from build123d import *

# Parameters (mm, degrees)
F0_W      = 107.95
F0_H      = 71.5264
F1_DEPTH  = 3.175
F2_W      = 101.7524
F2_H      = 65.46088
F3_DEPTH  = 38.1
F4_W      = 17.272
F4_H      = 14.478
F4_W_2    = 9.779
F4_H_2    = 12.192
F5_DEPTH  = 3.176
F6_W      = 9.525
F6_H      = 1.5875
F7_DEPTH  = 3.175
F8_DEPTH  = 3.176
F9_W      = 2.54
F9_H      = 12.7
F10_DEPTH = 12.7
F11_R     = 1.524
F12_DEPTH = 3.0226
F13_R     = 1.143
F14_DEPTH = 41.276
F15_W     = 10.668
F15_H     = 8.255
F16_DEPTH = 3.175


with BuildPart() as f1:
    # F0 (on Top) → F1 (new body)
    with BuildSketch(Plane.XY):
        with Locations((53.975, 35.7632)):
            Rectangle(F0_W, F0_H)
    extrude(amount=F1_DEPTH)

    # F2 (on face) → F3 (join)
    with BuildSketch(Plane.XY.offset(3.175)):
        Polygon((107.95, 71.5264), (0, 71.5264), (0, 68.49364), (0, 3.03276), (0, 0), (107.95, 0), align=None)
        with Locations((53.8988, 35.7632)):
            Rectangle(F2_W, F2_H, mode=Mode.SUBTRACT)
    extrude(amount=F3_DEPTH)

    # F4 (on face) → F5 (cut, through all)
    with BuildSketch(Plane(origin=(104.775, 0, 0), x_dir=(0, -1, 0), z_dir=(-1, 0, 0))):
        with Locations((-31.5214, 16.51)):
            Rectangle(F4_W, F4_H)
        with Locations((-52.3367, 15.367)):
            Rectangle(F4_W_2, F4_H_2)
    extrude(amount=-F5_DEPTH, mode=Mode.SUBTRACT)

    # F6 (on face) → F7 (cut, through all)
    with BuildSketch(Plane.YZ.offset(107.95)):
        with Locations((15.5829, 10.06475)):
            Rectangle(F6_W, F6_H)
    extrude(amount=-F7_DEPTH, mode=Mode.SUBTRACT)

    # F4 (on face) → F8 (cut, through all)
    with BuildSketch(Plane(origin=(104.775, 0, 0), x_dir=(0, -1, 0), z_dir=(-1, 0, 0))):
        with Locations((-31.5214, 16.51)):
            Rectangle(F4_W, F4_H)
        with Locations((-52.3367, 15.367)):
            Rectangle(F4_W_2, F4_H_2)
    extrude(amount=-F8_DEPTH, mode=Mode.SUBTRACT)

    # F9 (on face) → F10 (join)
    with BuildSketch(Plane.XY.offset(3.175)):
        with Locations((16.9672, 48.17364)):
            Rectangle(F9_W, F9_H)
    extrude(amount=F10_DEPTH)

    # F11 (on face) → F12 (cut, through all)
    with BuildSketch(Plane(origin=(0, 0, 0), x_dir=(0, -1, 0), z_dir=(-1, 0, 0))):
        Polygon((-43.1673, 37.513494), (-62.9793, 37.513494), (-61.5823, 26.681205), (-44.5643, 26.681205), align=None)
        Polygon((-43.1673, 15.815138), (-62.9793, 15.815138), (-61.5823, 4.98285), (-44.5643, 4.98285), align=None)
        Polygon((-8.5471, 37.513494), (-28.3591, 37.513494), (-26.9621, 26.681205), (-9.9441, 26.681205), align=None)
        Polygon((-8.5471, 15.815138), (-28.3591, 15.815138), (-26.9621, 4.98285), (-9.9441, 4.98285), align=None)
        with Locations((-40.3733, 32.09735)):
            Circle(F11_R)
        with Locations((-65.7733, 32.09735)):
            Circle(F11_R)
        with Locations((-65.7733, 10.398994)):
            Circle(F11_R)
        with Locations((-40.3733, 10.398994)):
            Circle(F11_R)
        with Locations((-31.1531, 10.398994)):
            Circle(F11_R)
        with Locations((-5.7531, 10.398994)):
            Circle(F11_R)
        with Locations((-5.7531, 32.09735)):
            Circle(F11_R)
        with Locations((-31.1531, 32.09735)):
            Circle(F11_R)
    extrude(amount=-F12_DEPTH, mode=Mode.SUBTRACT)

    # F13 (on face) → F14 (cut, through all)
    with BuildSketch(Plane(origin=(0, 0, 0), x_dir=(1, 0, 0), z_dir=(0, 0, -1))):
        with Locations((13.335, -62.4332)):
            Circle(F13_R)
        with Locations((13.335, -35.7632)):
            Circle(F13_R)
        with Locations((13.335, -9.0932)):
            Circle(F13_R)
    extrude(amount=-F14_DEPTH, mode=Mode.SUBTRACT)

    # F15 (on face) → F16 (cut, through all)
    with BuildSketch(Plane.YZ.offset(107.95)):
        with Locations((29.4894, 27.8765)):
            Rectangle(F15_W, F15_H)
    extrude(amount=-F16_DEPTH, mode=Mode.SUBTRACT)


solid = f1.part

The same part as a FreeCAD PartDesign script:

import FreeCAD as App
import Part
import Sketcher
from FreeCAD import Vector
Q = App.Units.Quantity

doc = App.newDocument("Part")
params = doc.addObject("Spreadsheet::Sheet", "Params")
for row, (alias, value) in enumerate([
    ("sketch1_width", "4.25 in"),
    ("sketch1_height", "2.816 in"),
    ("pad1_length", "0.125 in"),
    ("sketch2_width", "4.25 in"),
    ("sketch2_width2", "4.006 in"),
    ("sketch2_height", "2.816 in"),
    ("pad2_length", "1.5 in"),
    ("sketch3_width", "0.68 in"),
    ("sketch3_height", "0.57 in"),
    ("sketch3_height2", "0.48 in"),
    ("sketch3_width2", "0.385 in"),
    ("sketch4_width", "0.375 in"),
    ("sketch4_height", "0.0625 in"),
    ("pocket2_length", "0.125 in"),
    ("sketch5_width", "0.68 in"),
    ("sketch5_height", "0.57 in"),
    ("sketch5_height2", "0.48 in"),
    ("sketch5_width2", "0.385 in"),
    ("sketch6_width", "0.1 in"),
    ("sketch6_height", "0.5 in"),
    ("pad3_length", "0.5 in"),
    ("sketch7_diameter", "0.12 in"),
    ("sketch7_width", "0.78 in"),
    ("sketch7_width2", "0.67 in"),
    ("sketch7_length", "0.43 in"),
    ("pocket4_length", "0.119 in"),
    ("sketch8_diameter", "0.09 in"),
    ("sketch9_width", "0.42 in"),
    ("sketch9_height", "0.325 in"),
    ("pocket6_length", "0.125 in"),
], start=1):
    params.set(f"A{row}", alias)
    params.set(f"B{row}", "=" + value)
    params.setAlias(f"B{row}", alias)

body = doc.addObject("PartDesign::Body", "Body")

# Sketch on XY plane
sketch1 = body.newObject("Sketcher::SketchObject", "Sketch")
sketch1.AttachmentSupport = (doc.getObject("XY_Plane"), [""])
sketch1.MapMode = "FlatFace"
sketch1.addGeometry([
    Part.LineSegment(Vector(0, 72, 0), Vector(0, 0, 0)),
    Part.LineSegment(Vector(0, 0, 0), Vector(108, 0, 0)),
    Part.LineSegment(Vector(108, 0, 0), Vector(108, 72, 0)),
    Part.LineSegment(Vector(108, 72, 0), Vector(0, 72, 0)),
], False)
sketch1.addConstraint([
    Sketcher.Constraint("Coincident", 0, 2, 1, 1),
    Sketcher.Constraint("Coincident", 1, 2, 2, 1),
    Sketcher.Constraint("Coincident", 2, 2, 3, 1),
    Sketcher.Constraint("Coincident", 3, 2, 0, 1),
    Sketcher.Constraint("Vertical", 0),
    Sketcher.Constraint("Horizontal", 1),
    Sketcher.Constraint("Vertical", 2),
    Sketcher.Constraint("Horizontal", 3),
    Sketcher.Constraint("Coincident", 0, 2, -1, 1),
    Sketcher.Constraint("DistanceX", 1, 1, 1, 2, Q("4.25 in")),
    Sketcher.Constraint("DistanceY", 0, 2, 0, 1, Q("2.816 in")),
])
sketch1.setExpression("Constraints[9]", "Params.sketch1_width")
sketch1.setExpression("Constraints[10]", "Params.sketch1_height")
pad1 = body.newObject("PartDesign::Pad", "Pad")
pad1.Profile = sketch1
pad1.setExpression("Length", "Params.pad1_length")

# Sketch on XY plane
sketch2 = body.newObject("Sketcher::SketchObject", "Sketch001")
sketch2.AttachmentSupport = (doc.getObject("XY_Plane"), [""])
sketch2.MapMode = "FlatFace"
sketch2.AttachmentOffset = App.Placement(Vector(0, 0, 0.125 * 25.4), App.Rotation())
sketch2.addGeometry([
    Part.LineSegment(Vector(108, 72, 0), Vector(0, 72, 0)),  # 0
    Part.LineSegment(Vector(0, 72, 0), Vector(0, 0, 0)),  # 1
    Part.LineSegment(Vector(0, 0, 0), Vector(108, 0, 0)),  # 2
    Part.LineSegment(Vector(108, 0, 0), Vector(108, 72, 0)),  # 3
    Part.LineSegment(Vector(105, 3, 0), Vector(3, 3, 0)),  # 4
    Part.LineSegment(Vector(3, 3, 0), Vector(3, 68, 0)),  # 5
    Part.LineSegment(Vector(3, 68, 0), Vector(105, 68, 0)),  # 6
    Part.LineSegment(Vector(105, 68, 0), Vector(105, 3, 0)),  # 7
], False)
sketch2.addConstraint([
    Sketcher.Constraint("Coincident", 0, 2, 1, 1),
    Sketcher.Constraint("Coincident", 1, 2, 2, 1),
    Sketcher.Constraint("Coincident", 2, 2, 3, 1),
    Sketcher.Constraint("Coincident", 3, 2, 0, 1),
    Sketcher.Constraint("Coincident", 4, 2, 5, 1),
    Sketcher.Constraint("Coincident", 5, 2, 6, 1),
    Sketcher.Constraint("Coincident", 6, 2, 7, 1),
    Sketcher.Constraint("Coincident", 7, 2, 4, 1),
    Sketcher.Constraint("Horizontal", 0),
    Sketcher.Constraint("Vertical", 1),
    Sketcher.Constraint("Horizontal", 2),
    Sketcher.Constraint("Vertical", 3),
    Sketcher.Constraint("Horizontal", 4),
    Sketcher.Constraint("Vertical", 5),
    Sketcher.Constraint("Horizontal", 6),
    Sketcher.Constraint("Vertical", 7),
    Sketcher.Constraint("Coincident", 1, 2, -1, 1),
    Sketcher.Constraint("DistanceX", 0, 2, 0, 1, Q("4.25 in")),
    Sketcher.Constraint("DistanceX", 4, 2, 4, 1, Q("4.006 in")),
    Sketcher.Constraint("DistanceY", 1, 2, 1, 1, Q("2.816 in")),
    Sketcher.Constraint("DistanceY", 5, 1, 5, 2, Q("2.5772 in")),
    Sketcher.Constraint("DistanceX", -1, 1, 4, 2, Q("0.119 in")),
    Sketcher.Constraint("DistanceY", -1, 1, 4, 2, Q("0.1194 in")),
])
sketch2.setExpression("Constraints[17]", "Params.sketch2_width")
sketch2.setExpression("Constraints[18]", "Params.sketch2_width2")
sketch2.setExpression("Constraints[19]", "Params.sketch2_height")
pad2 = body.newObject("PartDesign::Pad", "Pad001")
pad2.Profile = sketch2
pad2.setExpression("Length", "Params.pad2_length")

# Sketch on YZ plane
sketch3 = body.newObject("Sketcher::SketchObject", "Sketch002")
sketch3.AttachmentSupport = (doc.getObject("YZ_Plane"), [""])
sketch3.MapMode = "FlatFace"
sketch3.AttachmentOffset = App.Placement(Vector(0, 0, 4.125 * 25.4), App.Rotation())
sketch3.addGeometry([
    Part.LineSegment(Vector(40, 24, 0), Vector(40, 9, 0)),  # 0
    Part.LineSegment(Vector(40, 9, 0), Vector(23, 9, 0)),  # 1
    Part.LineSegment(Vector(23, 9, 0), Vector(23, 24, 0)),  # 2
    Part.LineSegment(Vector(23, 24, 0), Vector(40, 24, 0)),  # 3
    Part.LineSegment(Vector(57, 21, 0), Vector(57, 9, 0)),  # 4
    Part.LineSegment(Vector(57, 9, 0), Vector(47, 9, 0)),  # 5
    Part.LineSegment(Vector(47, 9, 0), Vector(47, 21, 0)),  # 6
    Part.LineSegment(Vector(47, 21, 0), Vector(57, 21, 0)),  # 7
], False)
sketch3.addConstraint([
    Sketcher.Constraint("Coincident", 0, 2, 1, 1),
    Sketcher.Constraint("Coincident", 1, 2, 2, 1),
    Sketcher.Constraint("Coincident", 2, 2, 3, 1),
    Sketcher.Constraint("Coincident", 3, 2, 0, 1),
    Sketcher.Constraint("Coincident", 4, 2, 5, 1),
    Sketcher.Constraint("Coincident", 5, 2, 6, 1),
    Sketcher.Constraint("Coincident", 6, 2, 7, 1),
    Sketcher.Constraint("Coincident", 7, 2, 4, 1),
    Sketcher.Constraint("Vertical", 0),
    Sketcher.Constraint("Horizontal", 1),
    Sketcher.Constraint("Vertical", 2),
    Sketcher.Constraint("Horizontal", 3),
    Sketcher.Constraint("Vertical", 4),
    Sketcher.Constraint("Horizontal", 5),
    Sketcher.Constraint("Vertical", 6),
    Sketcher.Constraint("Horizontal", 7),
    Sketcher.Constraint("Horizontal", 1, 2, 4, 2),
    Sketcher.Constraint("DistanceX", 1, 2, 1, 1, Q("0.68 in")),
    Sketcher.Constraint("DistanceY", 0, 2, 0, 1, Q("0.57 in")),
    Sketcher.Constraint("DistanceY", 4, 2, 4, 1, Q("0.48 in")),
    Sketcher.Constraint("DistanceX", 5, 2, 5, 1, Q("0.385 in")),
    Sketcher.Constraint("DistanceX", -1, 1, 0, 2, Q("1.581 in")),
    Sketcher.Constraint("DistanceY", -1, 1, 0, 2, Q("0.365 in")),
    Sketcher.Constraint("DistanceX", -1, 1, 4, 2, Q("2.253 in")),
])
sketch3.setExpression("Constraints[17]", "Params.sketch3_width")
sketch3.setExpression("Constraints[18]", "Params.sketch3_height")
sketch3.setExpression("Constraints[19]", "Params.sketch3_height2")
sketch3.setExpression("Constraints[20]", "Params.sketch3_width2")
pocket1 = body.newObject("PartDesign::Pocket", "Pocket")
pocket1.Profile = sketch3
pocket1.Type = "ThroughAll"
pocket1.Reversed = True

# Sketch on YZ plane
sketch4 = body.newObject("Sketcher::SketchObject", "Sketch003")
sketch4.AttachmentSupport = (doc.getObject("YZ_Plane"), [""])
sketch4.MapMode = "FlatFace"
sketch4.AttachmentOffset = App.Placement(Vector(0, 0, 4.25 * 25.4), App.Rotation())
sketch4.addGeometry([
    Part.LineSegment(Vector(10.8, 10.9, 0), Vector(10.8, 9.3, 0)),
    Part.LineSegment(Vector(10.8, 9.3, 0), Vector(20.3, 9.3, 0)),
    Part.LineSegment(Vector(20.3, 9.3, 0), Vector(20.3, 10.9, 0)),
    Part.LineSegment(Vector(20.3, 10.9, 0), Vector(10.8, 10.9, 0)),
], False)
sketch4.addConstraint([
    Sketcher.Constraint("Coincident", 0, 2, 1, 1),
    Sketcher.Constraint("Coincident", 1, 2, 2, 1),
    Sketcher.Constraint("Coincident", 2, 2, 3, 1),
    Sketcher.Constraint("Coincident", 3, 2, 0, 1),
    Sketcher.Constraint("Vertical", 0),
    Sketcher.Constraint("Horizontal", 1),
    Sketcher.Constraint("Vertical", 2),
    Sketcher.Constraint("Horizontal", 3),
    Sketcher.Constraint("DistanceX", 1, 1, 1, 2, Q("0.375 in")),
    Sketcher.Constraint("DistanceY", 0, 2, 0, 1, Q("0.0625 in")),
    Sketcher.Constraint("DistanceX", -1, 1, 0, 2, Q("0.426 in")),
    Sketcher.Constraint("DistanceY", -1, 1, 0, 2, Q("0.365 in")),
])
sketch4.setExpression("Constraints[8]", "Params.sketch4_width")
sketch4.setExpression("Constraints[9]", "Params.sketch4_height")
pocket2 = body.newObject("PartDesign::Pocket", "Pocket001")
pocket2.Profile = sketch4
pocket2.setExpression("Length", "Params.pocket2_length")

# Sketch on YZ plane
sketch5 = body.newObject("Sketcher::SketchObject", "Sketch004")
sketch5.AttachmentSupport = (doc.getObject("YZ_Plane"), [""])
sketch5.MapMode = "FlatFace"
sketch5.AttachmentOffset = App.Placement(Vector(0, 0, 4.125 * 25.4), App.Rotation())
sketch5.addGeometry([
    Part.LineSegment(Vector(40, 24, 0), Vector(40, 9, 0)),  # 0
    Part.LineSegment(Vector(40, 9, 0), Vector(23, 9, 0)),  # 1
    Part.LineSegment(Vector(23, 9, 0), Vector(23, 24, 0)),  # 2
    Part.LineSegment(Vector(23, 24, 0), Vector(40, 24, 0)),  # 3
    Part.LineSegment(Vector(57, 21, 0), Vector(57, 9, 0)),  # 4
    Part.LineSegment(Vector(57, 9, 0), Vector(47, 9, 0)),  # 5
    Part.LineSegment(Vector(47, 9, 0), Vector(47, 21, 0)),  # 6
    Part.LineSegment(Vector(47, 21, 0), Vector(57, 21, 0)),  # 7
], False)
sketch5.addConstraint([
    Sketcher.Constraint("Coincident", 0, 2, 1, 1),
    Sketcher.Constraint("Coincident", 1, 2, 2, 1),
    Sketcher.Constraint("Coincident", 2, 2, 3, 1),
    Sketcher.Constraint("Coincident", 3, 2, 0, 1),
    Sketcher.Constraint("Coincident", 4, 2, 5, 1),
    Sketcher.Constraint("Coincident", 5, 2, 6, 1),
    Sketcher.Constraint("Coincident", 6, 2, 7, 1),
    Sketcher.Constraint("Coincident", 7, 2, 4, 1),
    Sketcher.Constraint("Vertical", 0),
    Sketcher.Constraint("Horizontal", 1),
    Sketcher.Constraint("Vertical", 2),
    Sketcher.Constraint("Horizontal", 3),
    Sketcher.Constraint("Vertical", 4),
    Sketcher.Constraint("Horizontal", 5),
    Sketcher.Constraint("Vertical", 6),
    Sketcher.Constraint("Horizontal", 7),
    Sketcher.Constraint("Horizontal", 1, 2, 4, 2),
    Sketcher.Constraint("DistanceX", 1, 2, 1, 1, Q("0.68 in")),
    Sketcher.Constraint("DistanceY", 0, 2, 0, 1, Q("0.57 in")),
    Sketcher.Constraint("DistanceY", 4, 2, 4, 1, Q("0.48 in")),
    Sketcher.Constraint("DistanceX", 5, 2, 5, 1, Q("0.385 in")),
    Sketcher.Constraint("DistanceX", -1, 1, 0, 2, Q("1.581 in")),
    Sketcher.Constraint("DistanceY", -1, 1, 0, 2, Q("0.365 in")),
    Sketcher.Constraint("DistanceX", -1, 1, 4, 2, Q("2.253 in")),
])
sketch5.setExpression("Constraints[17]", "Params.sketch5_width")
sketch5.setExpression("Constraints[18]", "Params.sketch5_height")
sketch5.setExpression("Constraints[19]", "Params.sketch5_height2")
sketch5.setExpression("Constraints[20]", "Params.sketch5_width2")
pocket3 = body.newObject("PartDesign::Pocket", "Pocket002")
pocket3.Profile = sketch5
pocket3.Type = "ThroughAll"
pocket3.Reversed = True

# Sketch on XY plane
sketch6 = body.newObject("Sketcher::SketchObject", "Sketch005")
sketch6.AttachmentSupport = (doc.getObject("XY_Plane"), [""])
sketch6.MapMode = "FlatFace"
sketch6.AttachmentOffset = App.Placement(Vector(0, 0, 0.125 * 25.4), App.Rotation())
sketch6.addGeometry([
    Part.LineSegment(Vector(15.7, 54.5, 0), Vector(15.7, 41.8, 0)),
    Part.LineSegment(Vector(15.7, 41.8, 0), Vector(18.2, 41.8, 0)),
    Part.LineSegment(Vector(18.2, 41.8, 0), Vector(18.2, 54.5, 0)),
    Part.LineSegment(Vector(18.2, 54.5, 0), Vector(15.7, 54.5, 0)),
], False)
sketch6.addConstraint([
    Sketcher.Constraint("Coincident", 0, 2, 1, 1),
    Sketcher.Constraint("Coincident", 1, 2, 2, 1),
    Sketcher.Constraint("Coincident", 2, 2, 3, 1),
    Sketcher.Constraint("Coincident", 3, 2, 0, 1),
    Sketcher.Constraint("Vertical", 0),
    Sketcher.Constraint("Horizontal", 1),
    Sketcher.Constraint("Vertical", 2),
    Sketcher.Constraint("Horizontal", 3),
    Sketcher.Constraint("DistanceX", 1, 1, 1, 2, Q("0.1 in")),
    Sketcher.Constraint("DistanceY", 0, 2, 0, 1, Q("0.5 in")),
    Sketcher.Constraint("DistanceX", -1, 1, 0, 2, Q("0.618 in")),
    Sketcher.Constraint("DistanceY", -1, 1, 0, 2, Q("1.6466 in")),
])
sketch6.setExpression("Constraints[8]", "Params.sketch6_width")
sketch6.setExpression("Constraints[9]", "Params.sketch6_height")
pad3 = body.newObject("PartDesign::Pad", "Pad002")
pad3.Profile = sketch6
pad3.setExpression("Length", "Params.pad3_length")

# Sketch on YZ plane
sketch7 = body.newObject("Sketcher::SketchObject", "Sketch006")
sketch7.AttachmentSupport = (doc.getObject("YZ_Plane"), [""])
sketch7.MapMode = "FlatFace"
sketch7.addGeometry([
    Part.LineSegment(Vector(43.2, 37.5, 0), Vector(63, 37.5, 0)),  # 0
    Part.LineSegment(Vector(63, 37.5, 0), Vector(61.6, 26.7, 0)),  # 1
    Part.LineSegment(Vector(61.6, 26.7, 0), Vector(44.6, 26.7, 0)),  # 2
    Part.LineSegment(Vector(44.6, 26.7, 0), Vector(43.2, 37.5, 0)),  # 3
    Part.LineSegment(Vector(43.2, 15.8, 0), Vector(63, 15.8, 0)),  # 4
    Part.LineSegment(Vector(63, 15.8, 0), Vector(61.6, 5, 0)),  # 5
    Part.LineSegment(Vector(61.6, 5, 0), Vector(44.6, 5, 0)),  # 6
    Part.LineSegment(Vector(44.6, 5, 0), Vector(43.2, 15.8, 0)),  # 7
    Part.LineSegment(Vector(8.5, 37.5, 0), Vector(28.4, 37.5, 0)),  # 8
    Part.LineSegment(Vector(28.4, 37.5, 0), Vector(27, 26.7, 0)),  # 9
    Part.LineSegment(Vector(27, 26.7, 0), Vector(9.9, 26.7, 0)),  # 10
    Part.LineSegment(Vector(9.9, 26.7, 0), Vector(8.5, 37.5, 0)),  # 11
    Part.LineSegment(Vector(8.5, 15.8, 0), Vector(28.4, 15.8, 0)),  # 12
    Part.LineSegment(Vector(28.4, 15.8, 0), Vector(27, 5, 0)),  # 13
    Part.LineSegment(Vector(27, 5, 0), Vector(9.9, 5, 0)),  # 14
    Part.LineSegment(Vector(9.9, 5, 0), Vector(8.5, 15.8, 0)),  # 15
    Part.Circle(Vector(40.4, 32.1, 0), Vector(0, 0, 1), 1.5),  # 16
    Part.Circle(Vector(65.8, 32.1, 0), Vector(0, 0, 1), 1.5),  # 17
    Part.Circle(Vector(65.8, 10.4, 0), Vector(0, 0, 1), 1.5),  # 18
    Part.Circle(Vector(40.4, 10.4, 0), Vector(0, 0, 1), 1.5),  # 19
    Part.Circle(Vector(31.2, 10.4, 0), Vector(0, 0, 1), 1.5),  # 20
    Part.Circle(Vector(5.8, 10.4, 0), Vector(0, 0, 1), 1.5),  # 21
    Part.Circle(Vector(5.8, 32.1, 0), Vector(0, 0, 1), 1.5),  # 22
    Part.Circle(Vector(31.2, 32.1, 0), Vector(0, 0, 1), 1.5),  # 23
], False)
sketch7.addConstraint([
    Sketcher.Constraint("Coincident", 0, 2, 1, 1),
    Sketcher.Constraint("Coincident", 1, 2, 2, 1),
    Sketcher.Constraint("Coincident", 2, 2, 3, 1),
    Sketcher.Constraint("Coincident", 3, 2, 0, 1),
    Sketcher.Constraint("Coincident", 4, 2, 5, 1),
    Sketcher.Constraint("Coincident", 5, 2, 6, 1),
    Sketcher.Constraint("Coincident", 6, 2, 7, 1),
    Sketcher.Constraint("Coincident", 7, 2, 4, 1),
    Sketcher.Constraint("Coincident", 8, 2, 9, 1),
    Sketcher.Constraint("Coincident", 9, 2, 10, 1),
    Sketcher.Constraint("Coincident", 10, 2, 11, 1),
    Sketcher.Constraint("Coincident", 11, 2, 8, 1),
    Sketcher.Constraint("Coincident", 12, 2, 13, 1),
    Sketcher.Constraint("Coincident", 13, 2, 14, 1),
    Sketcher.Constraint("Coincident", 14, 2, 15, 1),
    Sketcher.Constraint("Coincident", 15, 2, 12, 1),
    Sketcher.Constraint("Horizontal", 0),
    Sketcher.Constraint("Horizontal", 2),
    Sketcher.Constraint("Horizontal", 4),
    Sketcher.Constraint("Horizontal", 6),
    Sketcher.Constraint("Horizontal", 8),
    Sketcher.Constraint("Horizontal", 10),
    Sketcher.Constraint("Horizontal", 12),
    Sketcher.Constraint("Horizontal", 14),
    Sketcher.Constraint("Equal", 16, 17),
    Sketcher.Constraint("Equal", 17, 18),
    Sketcher.Constraint("Equal", 18, 19),
    Sketcher.Constraint("Equal", 19, 20),
    Sketcher.Constraint("Equal", 20, 21),
    Sketcher.Constraint("Equal", 21, 22),
    Sketcher.Constraint("Equal", 22, 23),
    Sketcher.Constraint("Parallel", 1, 5),
    Sketcher.Constraint("Parallel", 3, 7),
    Sketcher.Constraint("Parallel", 5, 9),
    Sketcher.Constraint("Parallel", 7, 11),
    Sketcher.Constraint("Parallel", 9, 13),
    Sketcher.Constraint("Parallel", 11, 15),
    Sketcher.Constraint("Horizontal", 16, 3, 17, 3),
    Sketcher.Constraint("Horizontal", 18, 3, 19, 3),
    Sketcher.Constraint("Horizontal", 19, 3, 20, 3),
    Sketcher.Constraint("Horizontal", 20, 3, 21, 3),
    Sketcher.Constraint("Horizontal", 17, 3, 22, 3),
    Sketcher.Constraint("Horizontal", 22, 3, 23, 3),
    Sketcher.Constraint("Horizontal", 3, 2, 8, 2),
    Sketcher.Constraint("Horizontal", 2, 2, 9, 2),
    Sketcher.Constraint("Horizontal", 7, 2, 12, 2),
    Sketcher.Constraint("Horizontal", 6, 2, 13, 2),
    Sketcher.Constraint("Vertical", 17, 3, 18, 3),
    Sketcher.Constraint("Vertical", 16, 3, 19, 3),
    Sketcher.Constraint("Vertical", 21, 3, 22, 3),
    Sketcher.Constraint("Vertical", 20, 3, 23, 3),
    Sketcher.Constraint("Vertical", 0, 2, 4, 2),
    Sketcher.Constraint("Vertical", 1, 2, 5, 2),
    Sketcher.Constraint("Vertical", 2, 2, 6, 2),
    Sketcher.Constraint("Vertical", 8, 2, 12, 2),
    Sketcher.Constraint("Vertical", 10, 2, 14, 2),
    Sketcher.Constraint("Equal", 4, 8),
    Sketcher.Constraint("Equal", 1, 3),
    Sketcher.Constraint("Diameter", 16, Q("0.12 in")),
    Sketcher.Constraint("DistanceX", 16, 3, 17, 3, Q("1 in")),
    Sketcher.Constraint("DistanceX", 21, 3, 20, 3, Q("1 in")),
    Sketcher.Constraint("DistanceX", 0, 1, 0, 2, Q("0.78 in")),
    Sketcher.Constraint("DistanceX", 2, 2, 2, 1, Q("0.67 in")),
    Sketcher.Constraint("Distance", 1, Q("0.43 in")),
    Sketcher.Constraint("DistanceX", 0, 2, 17, 3, Q("0.11 in")),
    Sketcher.Constraint("DistanceX", 8, 2, 23, 3, Q("0.11 in")),
    Sketcher.Constraint("DistanceX", 20, 3, 19, 3, Q("0.363 in")),
    Sketcher.Constraint("DistanceX", -1, 1, 16, 3, Q("1.5895 in")),
    Sketcher.Constraint("DistanceY", 18, 3, 0, 2, Q("1.0675 in")),
    Sketcher.Constraint("DistanceY", 5, 2, 17, 3, Q("1.0675 in")),
    Sketcher.Constraint("DistanceY", -1, 1, 16, 3, Q("32.09735 mm")),
    Sketcher.Constraint("DistanceY", -1, 1, 18, 3, Q("10.398994 mm")),
])
sketch7.setExpression("Constraints[58]", "Params.sketch7_diameter")
sketch7.setExpression("Constraints[61]", "Params.sketch7_width")
sketch7.setExpression("Constraints[62]", "Params.sketch7_width2")
sketch7.setExpression("Constraints[63]", "Params.sketch7_length")
pocket4 = body.newObject("PartDesign::Pocket", "Pocket003")
pocket4.Profile = sketch7
pocket4.setExpression("Length", "Params.pocket4_length")
pocket4.Reversed = True

# Sketch on XY plane
sketch8 = body.newObject("Sketcher::SketchObject", "Sketch007")
sketch8.AttachmentSupport = (doc.getObject("XY_Plane"), [""])
sketch8.MapMode = "FlatFace"
sketch8.addGeometry([
    Part.Circle(Vector(13.3, 62.4, 0), Vector(0, 0, 1), 1.1),
    Part.Circle(Vector(13.3, 35.8, 0), Vector(0, 0, 1), 1.1),
    Part.Circle(Vector(13.3, 9.1, 0), Vector(0, 0, 1), 1.1),
], False)
sketch8.addConstraint([
    Sketcher.Constraint("Equal", 0, 1),
    Sketcher.Constraint("Equal", 1, 2),
    Sketcher.Constraint("Vertical", 0, 3, 1, 3),
    Sketcher.Constraint("Vertical", 1, 3, 2, 3),
    Sketcher.Constraint("Diameter", 0, Q("0.09 in")),
    Sketcher.Constraint("DistanceY", 2, 3, 0, 3, Q("2.1 in")),
    Sketcher.Constraint("DistanceY", 1, 3, 0, 3, Q("1.05 in")),
    Sketcher.Constraint("DistanceX", -1, 1, 0, 3, Q("0.525 in")),
    Sketcher.Constraint("DistanceY", -1, 1, 0, 3, Q("2.458 in")),
])
sketch8.setExpression("Constraints[4]", "Params.sketch8_diameter")
pocket5 = body.newObject("PartDesign::Pocket", "Pocket004")
pocket5.Profile = sketch8
pocket5.Type = "ThroughAll"
pocket5.Reversed = True

# Sketch on YZ plane
sketch9 = body.newObject("Sketcher::SketchObject", "Sketch008")
sketch9.AttachmentSupport = (doc.getObject("YZ_Plane"), [""])
sketch9.MapMode = "FlatFace"
sketch9.AttachmentOffset = App.Placement(Vector(0, 0, 4.25 * 25.4), App.Rotation())
sketch9.addGeometry([
    Part.LineSegment(Vector(24, 32, 0), Vector(24, 24, 0)),
    Part.LineSegment(Vector(24, 24, 0), Vector(35, 24, 0)),
    Part.LineSegment(Vector(35, 24, 0), Vector(35, 32, 0)),
    Part.LineSegment(Vector(35, 32, 0), Vector(24, 32, 0)),
], False)
sketch9.addConstraint([
    Sketcher.Constraint("Coincident", 0, 2, 1, 1),
    Sketcher.Constraint("Coincident", 1, 2, 2, 1),
    Sketcher.Constraint("Coincident", 2, 2, 3, 1),
    Sketcher.Constraint("Coincident", 3, 2, 0, 1),
    Sketcher.Constraint("Vertical", 0),
    Sketcher.Constraint("Horizontal", 1),
    Sketcher.Constraint("Vertical", 2),
    Sketcher.Constraint("Horizontal", 3),
    Sketcher.Constraint("DistanceX", 1, 1, 1, 2, Q("0.42 in")),
    Sketcher.Constraint("DistanceY", 0, 2, 0, 1, Q("0.325 in")),
    Sketcher.Constraint("DistanceY", -1, 1, 2, 2, Q("1.26 in")),
    Sketcher.Constraint("DistanceX", -1, 1, 0, 2, Q("0.951 in")),
])
sketch9.setExpression("Constraints[8]", "Params.sketch9_width")
sketch9.setExpression("Constraints[9]", "Params.sketch9_height")
pocket6 = body.newObject("PartDesign::Pocket", "Pocket005")
pocket6.Profile = sketch9
pocket6.setExpression("Length", "Params.pocket6_length")

doc.recompute()
